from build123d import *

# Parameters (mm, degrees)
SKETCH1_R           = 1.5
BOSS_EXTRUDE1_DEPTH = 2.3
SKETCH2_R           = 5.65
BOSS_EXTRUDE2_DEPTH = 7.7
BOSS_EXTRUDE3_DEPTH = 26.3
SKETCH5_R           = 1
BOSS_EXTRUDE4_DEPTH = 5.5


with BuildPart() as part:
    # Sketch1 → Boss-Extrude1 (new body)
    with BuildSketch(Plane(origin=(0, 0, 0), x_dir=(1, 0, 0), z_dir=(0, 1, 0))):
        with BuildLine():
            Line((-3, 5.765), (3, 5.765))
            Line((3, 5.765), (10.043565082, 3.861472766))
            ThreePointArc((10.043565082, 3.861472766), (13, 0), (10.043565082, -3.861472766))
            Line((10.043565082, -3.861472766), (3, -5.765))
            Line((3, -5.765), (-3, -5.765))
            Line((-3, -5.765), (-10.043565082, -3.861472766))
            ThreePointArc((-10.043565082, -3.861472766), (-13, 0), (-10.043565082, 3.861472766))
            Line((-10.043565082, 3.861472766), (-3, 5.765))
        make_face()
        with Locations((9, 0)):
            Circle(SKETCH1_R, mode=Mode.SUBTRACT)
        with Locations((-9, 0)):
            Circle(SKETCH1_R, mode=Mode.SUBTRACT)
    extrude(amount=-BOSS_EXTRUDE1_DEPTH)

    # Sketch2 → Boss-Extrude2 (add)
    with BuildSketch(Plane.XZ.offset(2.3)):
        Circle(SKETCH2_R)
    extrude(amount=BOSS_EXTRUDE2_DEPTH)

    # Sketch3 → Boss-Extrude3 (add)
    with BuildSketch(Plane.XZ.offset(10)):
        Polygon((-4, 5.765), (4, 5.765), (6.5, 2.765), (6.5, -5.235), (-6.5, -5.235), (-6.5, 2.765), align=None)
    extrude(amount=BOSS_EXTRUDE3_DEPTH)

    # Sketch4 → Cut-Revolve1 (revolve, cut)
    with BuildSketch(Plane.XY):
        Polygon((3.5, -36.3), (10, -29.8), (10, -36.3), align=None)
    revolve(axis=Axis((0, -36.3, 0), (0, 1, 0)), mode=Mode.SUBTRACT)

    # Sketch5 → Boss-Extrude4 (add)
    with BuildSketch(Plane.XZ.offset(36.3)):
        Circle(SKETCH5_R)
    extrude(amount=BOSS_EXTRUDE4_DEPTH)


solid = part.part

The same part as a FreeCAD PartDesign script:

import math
import FreeCAD as App
import Part
import Sketcher
from FreeCAD import Vector
Q = App.Units.Quantity


def add_polygon(sketch, points):
    """Adds a closed chain of lines whose ends are joined by coincident constraints."""
    first, n = sketch.GeometryCount, len(points)
    for a, b in zip(points, points[1:] + points[:1]):
        sketch.addGeometry(Part.LineSegment(App.Vector(*a, 0), App.Vector(*b, 0)), False)
    for i in range(n):
        sketch.addConstraint(Sketcher.Constraint("Coincident", first + i, 2, first + (i + 1) % n, 1))

doc = App.newDocument("Part")
params = doc.addObject("Spreadsheet::Sheet", "Params")
for row, (alias, value) in enumerate([
    ("sketch1_diameter", "3 mm"),
    ("sketch1_radius", "4 mm"),
    ("sketch1_width", "6 mm"),
    ("pad1_length", "2.3 mm"),
    ("sketch2_diameter", "11.3 mm"),
    ("pad2_length", "7.7 mm"),
    ("sketch3_width", "8 mm"),
    ("sketch3_width2", "13 mm"),
    ("pad3_length", "26.3 mm"),
    ("sketch4_width", "6.5 mm"),
    ("groove_angle", "360 deg"),
    ("sketch5_diameter", "2 mm"),
    ("pad4_length", "5.5 mm"),
], start=1):
    params.set(f"A{row}", alias)
    params.set(f"B{row}", "=" + value)
    params.setAlias(f"B{row}", alias)

body = doc.addObject("PartDesign::Body", "Body")

# Sketch on XZ plane
sketch1 = body.newObject("Sketcher::SketchObject", "Sketch")
sketch1.AttachmentSupport = (doc.getObject("XZ_Plane"), [""])
sketch1.MapMode = "FlatFace"
sketch1.addGeometry([
    Part.LineSegment(Vector(3, -5.8, 0), Vector(-3, -5.8, 0)),  # 0
    Part.LineSegment(Vector(-3, -5.8, 0), Vector(-10, -3.9, 0)),  # 1
    Part.ArcOfCircle(Part.Circle(Vector(-9, 0, 0), Vector(0, 0, 1), 4), math.radians(105), math.radians(255)),  # 2
    Part.LineSegment(Vector(-10, 3.9, 0), Vector(-3, 5.8, 0)),  # 3
    Part.LineSegment(Vector(-3, 5.8, 0), Vector(3, 5.8, 0)),  # 4
    Part.LineSegment(Vector(3, 5.8, 0), Vector(10, 3.9, 0)),  # 5
    Part.ArcOfCircle(Part.Circle(Vector(9, 0, 0), Vector(0, 0, 1), 4), math.radians(-75), math.radians(75)),  # 6
    Part.LineSegment(Vector(10, -3.9, 0), Vector(3, -5.8, 0)),  # 7
    Part.Circle(Vector(9, 0, 0), Vector(0, 0, 1), 1.5),  # 8
    Part.Circle(Vector(-9, 0, 0), Vector(0, 0, 1), 1.5),  # 9
], False)
sketch1.addConstraint([
    Sketcher.Constraint("Coincident", 0, 2, 1, 1),
    Sketcher.Constraint("Tangent", 1, 2, 2, 2),
    Sketcher.Constraint("Tangent", 2, 1, 3, 1),
    Sketcher.Constraint("Coincident", 3, 2, 4, 1),
    Sketcher.Constraint("Coincident", 4, 2, 5, 1),
    Sketcher.Constraint("Tangent", 5, 2, 6, 2),
    Sketcher.Constraint("Tangent", 6, 1, 7, 1),
    Sketcher.Constraint("Coincident", 7, 2, 0, 1),
    Sketcher.Constraint("Horizontal", 0),
    Sketcher.Constraint("Horizontal", 4),
    Sketcher.Constraint("Coincident", 8, 3, 6, 3),
    Sketcher.Constraint("Coincident", 9, 3, 2, 3),
    Sketcher.Constraint("Equal", 2, 6),
    Sketcher.Constraint("Equal", 8, 9),
    Sketcher.Constraint("Symmetric", 2, 3, 6, 3, -1, 1),
    Sketcher.Constraint("Symmetric", 0, 2, 4, 2, -1, 1),
    Sketcher.Constraint("Symmetric", 2, 1, 5, 2, -2),
    Sketcher.Constraint("Parallel", 3, 7),
    Sketcher.Constraint("Diameter", 8, Q("3 mm")),
    Sketcher.Constraint("Radius", 2, Q("4 mm")),
    Sketcher.Constraint("DistanceX", 0, 2, 0, 1, Q("6 mm")),
    Sketcher.Constraint("DistanceX", 2, 3, -1, 1, Q("9 mm")),
    Sketcher.Constraint("DistanceY", 0, 2, 3, 2, Q("11.53 mm")),
])
sketch1.setExpression("Constraints[18]", "Params.sketch1_diameter")
sketch1.setExpression("Constraints[19]", "Params.sketch1_radius")
sketch1.setExpression("Constraints[20]", "Params.sketch1_width")
pad1 = body.newObject("PartDesign::Pad", "Pad")
pad1.Profile = sketch1
pad1.setExpression("Length", "Params.pad1_length")

# Sketch on XZ plane
sketch2 = body.newObject("Sketcher::SketchObject", "Sketch001")
sketch2.AttachmentSupport = (doc.getObject("XZ_Plane"), [""])
sketch2.MapMode = "FlatFace"
sketch2.AttachmentOffset = App.Placement(Vector(0, 0, 2.3), App.Rotation())
sketch2.addGeometry(Part.Circle(Vector(0, 0, 0), Vector(0, 0, 1), 6), False)
sketch2.addConstraint([
    Sketcher.Constraint("Coincident", 0, 3, -1, 1),
    Sketcher.Constraint("Diameter", 0, Q("11.3 mm")),
])
sketch2.setExpression("Constraints[1]", "Params.sketch2_diameter")
pad2 = body.newObject("PartDesign::Pad", "Pad001")
pad2.Profile = sketch2
pad2.setExpression("Length", "Params.pad2_length")

# Sketch on XZ plane
sketch3 = body.newObject("Sketcher::SketchObject", "Sketch002")
sketch3.AttachmentSupport = (doc.getObject("XZ_Plane"), [""])
sketch3.MapMode = "FlatFace"
sketch3.AttachmentOffset = App.Placement(Vector(0, 0, 10), App.Rotation())
add_polygon(sketch3, [(4, 5.8), (-4, 5.8), (-6.5, 2.8), (-6.5, -5.2), (6.5, -5.2), (6.5, 2.8)])  # lines 0-5
sketch3.addConstraint([
    Sketcher.Constraint("Horizontal", 0),
    Sketcher.Constraint("Vertical", 2),
    Sketcher.Constraint("Horizontal", 3),
    Sketcher.Constraint("Vertical", 4),
    Sketcher.Constraint("Symmetric", 1, 2, 4, 2, -2),
    Sketcher.Constraint("Equal", 0, 2),
    Sketcher.Constraint("Equal", 1, 5),
    Sketcher.Constraint("DistanceX", 0, 2, 0, 1, Q("8 mm")),
    Sketcher.Constraint("DistanceX", 3, 1, 3, 2, Q("13 mm")),
    Sketcher.Constraint("DistanceY", 1, 2, 0, 2, Q("3 mm")),
    Sketcher.Constraint("DistanceY", -1, 1, 0, 2, Q("5.765 mm")),
])
sketch3.setExpression("Constraints[13]", "Params.sketch3_width")
sketch3.setExpression("Constraints[14]", "Params.sketch3_width2")
pad3 = body.newObject("PartDesign::Pad", "Pad002")
pad3.Profile = sketch3
pad3.setExpression("Length", "Params.pad3_length")

# Sketch on XY plane
sketch4 = body.newObject("Sketcher::SketchObject", "Sketch003")
sketch4.AttachmentSupport = (doc.getObject("XY_Plane"), [""])
sketch4.MapMode = "FlatFace"
add_polygon(sketch4, [(10, -30), (4, -36), (10, -36)])  # lines 0-2
sketch4.addConstraint([
    Sketcher.Constraint("Horizontal", 1),
    Sketcher.Constraint("Vertical", 2),
    Sketcher.Constraint("Equal", 1, 2),
    Sketcher.Constraint("DistanceX", 1, 1, 1, 2, Q("6.5 mm")),
    Sketcher.Constraint("DistanceX", -1, 1, 1, 2, Q("10 mm")),
    Sketcher.Constraint("DistanceY", 0, 2, -1, 1, Q("36.3 mm")),
])
sketch4.setExpression("Constraints[6]", "Params.sketch4_width")
groove = body.newObject("PartDesign::Groove", "Groove")
groove.Profile = sketch4
groove.ReferenceAxis = (sketch4, ["V_Axis"])
groove.setExpression("Angle", "Params.groove_angle")

# Sketch on XZ plane
sketch5 = body.newObject("Sketcher::SketchObject", "Sketch004")
sketch5.AttachmentSupport = (doc.getObject("XZ_Plane"), [""])
sketch5.MapMode = "FlatFace"
sketch5.AttachmentOffset = App.Placement(Vector(0, 0, 36.3), App.Rotation())
sketch5.addGeometry(Part.Circle(Vector(0, 0, 0), Vector(0, 0, 1), 1), False)
sketch5.addConstraint([
    Sketcher.Constraint("Coincident", 0, 3, -1, 1),
    Sketcher.Constraint("Diameter", 0, Q("2 mm")),
])
sketch5.setExpression("Constraints[1]", "Params.sketch5_diameter")
pad4 = body.newObject("PartDesign::Pad", "Pad003")
pad4.Profile = sketch5
pad4.setExpression("Length", "Params.pad4_length")

doc.recompute()
